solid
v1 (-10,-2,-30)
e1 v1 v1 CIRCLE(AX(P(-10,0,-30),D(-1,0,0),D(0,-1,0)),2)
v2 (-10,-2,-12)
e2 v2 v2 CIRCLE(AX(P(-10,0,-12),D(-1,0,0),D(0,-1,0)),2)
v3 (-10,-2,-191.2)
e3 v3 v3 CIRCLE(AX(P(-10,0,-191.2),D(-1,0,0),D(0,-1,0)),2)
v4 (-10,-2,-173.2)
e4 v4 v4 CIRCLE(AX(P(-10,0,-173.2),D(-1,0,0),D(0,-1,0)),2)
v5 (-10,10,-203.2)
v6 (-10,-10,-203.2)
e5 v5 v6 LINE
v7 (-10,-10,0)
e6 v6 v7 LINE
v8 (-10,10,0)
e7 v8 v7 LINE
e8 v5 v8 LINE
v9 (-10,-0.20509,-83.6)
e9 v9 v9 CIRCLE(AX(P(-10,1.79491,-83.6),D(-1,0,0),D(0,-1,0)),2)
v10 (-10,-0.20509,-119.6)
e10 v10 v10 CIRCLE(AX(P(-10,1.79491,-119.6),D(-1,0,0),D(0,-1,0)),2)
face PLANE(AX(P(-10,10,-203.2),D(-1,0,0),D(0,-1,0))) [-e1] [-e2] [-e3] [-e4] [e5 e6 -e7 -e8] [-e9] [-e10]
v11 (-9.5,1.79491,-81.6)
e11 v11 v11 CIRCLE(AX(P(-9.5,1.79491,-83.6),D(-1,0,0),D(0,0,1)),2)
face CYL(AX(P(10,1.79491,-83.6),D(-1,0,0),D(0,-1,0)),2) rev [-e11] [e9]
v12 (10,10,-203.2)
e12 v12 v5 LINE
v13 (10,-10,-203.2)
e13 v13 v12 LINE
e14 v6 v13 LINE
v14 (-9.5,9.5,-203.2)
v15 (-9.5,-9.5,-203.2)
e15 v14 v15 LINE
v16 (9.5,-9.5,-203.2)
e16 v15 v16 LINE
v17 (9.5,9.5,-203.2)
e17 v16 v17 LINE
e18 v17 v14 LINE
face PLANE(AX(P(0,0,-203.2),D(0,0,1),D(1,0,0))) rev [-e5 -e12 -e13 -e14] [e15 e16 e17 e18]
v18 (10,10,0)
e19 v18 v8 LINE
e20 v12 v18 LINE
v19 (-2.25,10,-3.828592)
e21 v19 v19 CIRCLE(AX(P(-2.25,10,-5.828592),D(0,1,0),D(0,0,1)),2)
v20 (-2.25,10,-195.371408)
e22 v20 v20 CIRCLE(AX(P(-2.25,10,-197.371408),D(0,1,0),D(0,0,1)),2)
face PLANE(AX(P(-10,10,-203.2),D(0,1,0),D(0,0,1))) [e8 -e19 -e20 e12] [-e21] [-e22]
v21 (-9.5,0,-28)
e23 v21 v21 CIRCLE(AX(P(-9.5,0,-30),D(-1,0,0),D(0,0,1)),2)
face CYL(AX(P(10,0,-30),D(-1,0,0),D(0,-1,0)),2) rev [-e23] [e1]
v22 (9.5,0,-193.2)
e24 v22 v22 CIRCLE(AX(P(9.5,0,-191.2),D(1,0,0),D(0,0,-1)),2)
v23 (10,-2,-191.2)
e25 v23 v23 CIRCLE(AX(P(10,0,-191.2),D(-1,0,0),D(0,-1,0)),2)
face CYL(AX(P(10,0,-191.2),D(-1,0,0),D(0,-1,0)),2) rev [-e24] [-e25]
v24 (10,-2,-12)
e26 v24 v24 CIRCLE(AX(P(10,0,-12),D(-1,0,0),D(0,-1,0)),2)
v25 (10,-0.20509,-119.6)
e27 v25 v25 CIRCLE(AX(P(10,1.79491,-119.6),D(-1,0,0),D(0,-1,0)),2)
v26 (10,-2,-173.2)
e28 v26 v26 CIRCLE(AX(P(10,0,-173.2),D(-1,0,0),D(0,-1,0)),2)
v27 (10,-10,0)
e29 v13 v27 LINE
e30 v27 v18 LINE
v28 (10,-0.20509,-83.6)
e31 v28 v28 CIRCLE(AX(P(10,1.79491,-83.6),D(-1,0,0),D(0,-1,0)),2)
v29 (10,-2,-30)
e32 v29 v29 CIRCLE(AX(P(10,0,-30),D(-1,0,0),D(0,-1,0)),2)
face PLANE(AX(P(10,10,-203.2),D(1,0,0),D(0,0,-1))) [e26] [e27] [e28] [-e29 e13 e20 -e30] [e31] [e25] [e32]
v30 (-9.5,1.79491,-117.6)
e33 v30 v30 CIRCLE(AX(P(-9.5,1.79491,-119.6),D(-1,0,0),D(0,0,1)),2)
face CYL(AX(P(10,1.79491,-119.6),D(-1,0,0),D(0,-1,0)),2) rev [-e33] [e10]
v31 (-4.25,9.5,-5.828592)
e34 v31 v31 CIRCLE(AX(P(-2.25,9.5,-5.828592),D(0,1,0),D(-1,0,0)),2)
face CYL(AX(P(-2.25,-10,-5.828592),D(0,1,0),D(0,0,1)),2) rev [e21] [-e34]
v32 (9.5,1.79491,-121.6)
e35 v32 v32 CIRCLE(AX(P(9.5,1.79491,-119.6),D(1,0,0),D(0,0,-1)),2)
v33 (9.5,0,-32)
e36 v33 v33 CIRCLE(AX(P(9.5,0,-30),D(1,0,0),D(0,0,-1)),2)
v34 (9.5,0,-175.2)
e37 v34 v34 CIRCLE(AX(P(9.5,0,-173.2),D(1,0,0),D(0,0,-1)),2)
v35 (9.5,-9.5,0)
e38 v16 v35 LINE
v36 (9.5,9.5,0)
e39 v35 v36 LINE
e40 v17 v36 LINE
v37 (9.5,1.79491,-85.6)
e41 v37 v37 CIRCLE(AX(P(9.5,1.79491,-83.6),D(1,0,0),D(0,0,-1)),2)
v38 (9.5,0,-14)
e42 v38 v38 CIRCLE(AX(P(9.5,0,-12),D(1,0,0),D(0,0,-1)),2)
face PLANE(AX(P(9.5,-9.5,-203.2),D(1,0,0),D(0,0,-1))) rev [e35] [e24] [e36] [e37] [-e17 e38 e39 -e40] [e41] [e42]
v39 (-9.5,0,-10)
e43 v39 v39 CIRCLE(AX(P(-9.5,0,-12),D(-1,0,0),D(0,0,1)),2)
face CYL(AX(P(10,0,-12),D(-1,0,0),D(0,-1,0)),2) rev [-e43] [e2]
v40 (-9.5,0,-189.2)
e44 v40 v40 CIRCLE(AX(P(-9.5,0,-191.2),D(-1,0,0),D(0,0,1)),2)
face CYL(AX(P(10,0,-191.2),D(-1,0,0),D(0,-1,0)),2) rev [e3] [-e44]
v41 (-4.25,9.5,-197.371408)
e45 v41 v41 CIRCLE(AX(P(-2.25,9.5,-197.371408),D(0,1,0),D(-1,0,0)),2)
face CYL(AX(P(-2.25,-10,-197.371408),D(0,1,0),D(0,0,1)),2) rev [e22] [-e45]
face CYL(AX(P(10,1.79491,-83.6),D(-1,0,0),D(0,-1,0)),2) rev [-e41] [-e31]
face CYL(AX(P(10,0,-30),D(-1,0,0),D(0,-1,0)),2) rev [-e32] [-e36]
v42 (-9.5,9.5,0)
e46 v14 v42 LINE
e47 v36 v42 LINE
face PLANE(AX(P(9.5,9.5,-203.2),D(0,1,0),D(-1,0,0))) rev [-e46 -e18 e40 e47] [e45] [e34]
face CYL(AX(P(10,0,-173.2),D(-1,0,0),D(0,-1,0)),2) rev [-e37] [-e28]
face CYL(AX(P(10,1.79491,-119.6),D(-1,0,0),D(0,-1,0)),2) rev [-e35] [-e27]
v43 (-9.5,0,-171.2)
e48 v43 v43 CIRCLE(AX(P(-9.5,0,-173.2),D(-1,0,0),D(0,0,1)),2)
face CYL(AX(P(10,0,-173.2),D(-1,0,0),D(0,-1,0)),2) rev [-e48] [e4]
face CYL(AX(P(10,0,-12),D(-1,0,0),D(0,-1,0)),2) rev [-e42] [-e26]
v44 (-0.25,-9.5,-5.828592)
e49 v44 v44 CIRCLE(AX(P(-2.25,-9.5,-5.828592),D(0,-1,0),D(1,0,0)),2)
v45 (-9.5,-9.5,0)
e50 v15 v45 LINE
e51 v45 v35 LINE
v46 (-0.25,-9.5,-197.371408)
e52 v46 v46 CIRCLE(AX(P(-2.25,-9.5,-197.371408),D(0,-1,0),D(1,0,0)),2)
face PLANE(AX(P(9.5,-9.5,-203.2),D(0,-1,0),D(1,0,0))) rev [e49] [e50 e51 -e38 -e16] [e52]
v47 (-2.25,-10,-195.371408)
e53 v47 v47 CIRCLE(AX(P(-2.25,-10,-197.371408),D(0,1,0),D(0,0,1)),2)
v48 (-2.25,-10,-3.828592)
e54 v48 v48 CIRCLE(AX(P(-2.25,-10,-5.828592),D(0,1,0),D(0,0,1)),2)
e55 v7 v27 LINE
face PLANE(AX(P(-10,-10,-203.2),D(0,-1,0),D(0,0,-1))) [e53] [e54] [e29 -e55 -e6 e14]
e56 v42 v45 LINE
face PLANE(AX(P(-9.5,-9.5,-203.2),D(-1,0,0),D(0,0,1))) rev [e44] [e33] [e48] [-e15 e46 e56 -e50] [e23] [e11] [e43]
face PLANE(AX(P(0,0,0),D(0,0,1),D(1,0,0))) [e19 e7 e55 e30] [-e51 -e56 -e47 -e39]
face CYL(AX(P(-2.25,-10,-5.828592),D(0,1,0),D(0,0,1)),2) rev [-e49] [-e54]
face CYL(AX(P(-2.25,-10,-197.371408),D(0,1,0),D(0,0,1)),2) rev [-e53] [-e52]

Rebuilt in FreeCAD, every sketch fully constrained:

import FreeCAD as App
import Part
import Sketcher
from FreeCAD import Vector


def add_polygon(sketch, points):
    """Adds a closed chain of lines whose ends are joined by coincident constraints."""
    first, n = sketch.GeometryCount, len(points)
    for a, b in zip(points, points[1:] + points[:1]):
        sketch.addGeometry(Part.LineSegment(App.Vector(*a, 0), App.Vector(*b, 0)), False)
    for i in range(n):
        sketch.addConstraint(Sketcher.Constraint("Coincident", first + i, 2, first + (i + 1) % n, 1))

doc = App.newDocument("Part")
params = doc.addObject("Spreadsheet::Sheet", "Params")
for row, (alias, value) in enumerate([
    ("sketch1_width", "20 mm"),
    ("sketch1_width2", "19 mm"),
    ("pad1_length", "203.2 mm"),
    ("sketch2_diameter", "4 mm"),
    ("sketch3_diameter", "4 mm"),
], start=1):
    params.set(f"A{row}", alias)
    params.set(f"B{row}", "=" + value)
    params.setAlias(f"B{row}", alias)

body = doc.addObject("PartDesign::Body", "Body")

# Sketch on XY plane
sketch1 = body.newObject("Sketcher::SketchObject", "Sketch")
sketch1.AttachmentSupport = (doc.getObject("XY_Plane"), [""])
sketch1.MapMode = "FlatFace"
add_polygon(sketch1, [(-10, 10), (-10, -10), (10, -10), (10, 10)])  # lines 0-3
add_polygon(sketch1, [(10, -10), (-10, -10), (-10, 10), (10, 10)])  # lines 4-7
sketch1.addConstraint(Sketcher.Constraint("Vertical", 0))
sketch1.addConstraint(Sketcher.Constraint("Horizontal", 1))
sketch1.addConstraint(Sketcher.Constraint("Vertical", 2))
sketch1.addConstraint(Sketcher.Constraint("Horizontal", 3))
sketch1.addConstraint(Sketcher.Constraint("Horizontal", 4))
sketch1.addConstraint(Sketcher.Constraint("Vertical", 5))
sketch1.addConstraint(Sketcher.Constraint("Horizontal", 6))
sketch1.addConstraint(Sketcher.Constraint("Vertical", 7))
sketch1.addConstraint(Sketcher.Constraint("Symmetric", 0, 2, 2, 2, -1, 1))
sketch1.addConstraint(Sketcher.Constraint("Symmetric", 4, 2, 6, 2, -1, 1))
sketch1.addConstraint(Sketcher.Constraint("Equal", 3, 0))
sketch1.addConstraint(Sketcher.Constraint("Equal", 6, 5))
sketch1.addConstraint(Sketcher.Constraint("DistanceX", 1, 1, 1, 2, 20.0))
sketch1.addConstraint(Sketcher.Constraint("DistanceX", 4, 2, 4, 1, 19.0))
sketch1.setExpression("Constraints[20]", "Params.sketch1_width")
sketch1.setExpression("Constraints[21]", "Params.sketch1_width2")
pad1 = body.newObject("PartDesign::Pad", "Pad")
pad1.Profile = sketch1
pad1.setExpression("Length", "Params.pad1_length")
pad1.Reversed = True

# Sketch on YZ plane
sketch2 = body.newObject("Sketcher::SketchObject", "Sketch001")
sketch2.AttachmentSupport = (doc.getObject("YZ_Plane"), [""])
sketch2.MapMode = "FlatFace"
sketch2.AttachmentOffset = App.Placement(Vector(0, 0, -10), App.Rotation())
sketch2.addGeometry(Part.Circle(Vector(0, -30, 0), Vector(0, 0, 1), 2), False)
sketch2.addGeometry(Part.Circle(Vector(1.8, -83.6, 0), Vector(0, 0, 1), 2), False)
sketch2.addGeometry(Part.Circle(Vector(1.8, -119.6, 0), Vector(0, 0, 1), 2), False)
sketch2.addGeometry(Part.Circle(Vector(0, -173.2, 0), Vector(0, 0, 1), 2), False)
sketch2.addGeometry(Part.Circle(Vector(0, -191.2, 0), Vector(0, 0, 1), 2), False)
sketch2.addGeometry(Part.Circle(Vector(0, -12, 0), Vector(0, 0, 1), 2), False)
sketch2.addConstraint(Sketcher.Constraint("Equal", 0, 1))
sketch2.addConstraint(Sketcher.Constraint("Equal", 1, 2))
sketch2.addConstraint(Sketcher.Constraint("Equal", 2, 3))
sketch2.addConstraint(Sketcher.Constraint("Equal", 3, 4))
sketch2.addConstraint(Sketcher.Constraint("Equal", 4, 5))
sketch2.addConstraint(Sketcher.Constraint("PointOnObject", 0, 3, -2))
sketch2.addConstraint(Sketcher.Constraint("PointOnObject", 3, 3, -2))
sketch2.addConstraint(Sketcher.Constraint("PointOnObject", 4, 3, -2))
sketch2.addConstraint(Sketcher.Constraint("PointOnObject", 5, 3, -2))
sketch2.addConstraint(Sketcher.Constraint("Vertical", 1, 3, 2, 3))
sketch2.addConstraint(Sketcher.Constraint("Diameter", 0, 4.0))
sketch2.addConstraint(Sketcher.Constraint("DistanceY", 0, 3, -1, 1, 30.0))
sketch2.addConstraint(Sketcher.Constraint("DistanceY", 5, 3, -1, 1, 12.0))
sketch2.addConstraint(Sketcher.Constraint("DistanceY", 2, 3, 1, 3, 36.0))
sketch2.addConstraint(Sketcher.Constraint("DistanceY", 4, 3, 3, 3, 18.0))
sketch2.addConstraint(Sketcher.Constraint("DistanceY", 1, 3, -1, 1, 83.6))
sketch2.addConstraint(Sketcher.Constraint("DistanceY", 3, 3, -1, 1, 173.2))
sketch2.addConstraint(Sketcher.Constraint("DistanceX", -1, 1, 1, 3, 1.79491))
sketch2.setExpression("Constraints[10]", "Params.sketch2_diameter")
pocket1 = body.newObject("PartDesign::Pocket", "Pocket")
pocket1.Profile = sketch2
pocket1.Type = "ThroughAll"
pocket1.Reversed = True

# Sketch on XZ plane
sketch3 = body.newObject("Sketcher::SketchObject", "Sketch002")
sketch3.AttachmentSupport = (doc.getObject("XZ_Plane"), [""])
sketch3.MapMode = "FlatFace"
sketch3.AttachmentOffset = App.Placement(Vector(0, 0, -10), App.Rotation())
sketch3.addGeometry(Part.Circle(Vector(-2.2, -197.4, 0), Vector(0, 0, 1), 2), False)
sketch3.addGeometry(Part.Circle(Vector(-2.2, -5.8, 0), Vector(0, 0, 1), 2), False)
sketch3.addConstraint(Sketcher.Constraint("Equal", 0, 1))
sketch3.addConstraint(Sketcher.Constraint("Vertical", 0, 3, 1, 3))
sketch3.addConstraint(Sketcher.Constraint("Diameter", 0, 4.0))
sketch3.addConstraint(Sketcher.Constraint("DistanceX", 0, 3, -1, 1, 2.25))
sketch3.addConstraint(Sketcher.Constraint("DistanceY", 0, 3, -1, 1, 197.371408))
sketch3.addConstraint(Sketcher.Constraint("DistanceY", 1, 3, -1, 1, 5.828592))
sketch3.setExpression("Constraints[2]", "Params.sketch3_diameter")
pocket2 = body.newObject("PartDesign::Pocket", "Pocket001")
pocket2.Profile = sketch3
pocket2.Type = "ThroughAll"
pocket2.Reversed = True

doc.recompute()
